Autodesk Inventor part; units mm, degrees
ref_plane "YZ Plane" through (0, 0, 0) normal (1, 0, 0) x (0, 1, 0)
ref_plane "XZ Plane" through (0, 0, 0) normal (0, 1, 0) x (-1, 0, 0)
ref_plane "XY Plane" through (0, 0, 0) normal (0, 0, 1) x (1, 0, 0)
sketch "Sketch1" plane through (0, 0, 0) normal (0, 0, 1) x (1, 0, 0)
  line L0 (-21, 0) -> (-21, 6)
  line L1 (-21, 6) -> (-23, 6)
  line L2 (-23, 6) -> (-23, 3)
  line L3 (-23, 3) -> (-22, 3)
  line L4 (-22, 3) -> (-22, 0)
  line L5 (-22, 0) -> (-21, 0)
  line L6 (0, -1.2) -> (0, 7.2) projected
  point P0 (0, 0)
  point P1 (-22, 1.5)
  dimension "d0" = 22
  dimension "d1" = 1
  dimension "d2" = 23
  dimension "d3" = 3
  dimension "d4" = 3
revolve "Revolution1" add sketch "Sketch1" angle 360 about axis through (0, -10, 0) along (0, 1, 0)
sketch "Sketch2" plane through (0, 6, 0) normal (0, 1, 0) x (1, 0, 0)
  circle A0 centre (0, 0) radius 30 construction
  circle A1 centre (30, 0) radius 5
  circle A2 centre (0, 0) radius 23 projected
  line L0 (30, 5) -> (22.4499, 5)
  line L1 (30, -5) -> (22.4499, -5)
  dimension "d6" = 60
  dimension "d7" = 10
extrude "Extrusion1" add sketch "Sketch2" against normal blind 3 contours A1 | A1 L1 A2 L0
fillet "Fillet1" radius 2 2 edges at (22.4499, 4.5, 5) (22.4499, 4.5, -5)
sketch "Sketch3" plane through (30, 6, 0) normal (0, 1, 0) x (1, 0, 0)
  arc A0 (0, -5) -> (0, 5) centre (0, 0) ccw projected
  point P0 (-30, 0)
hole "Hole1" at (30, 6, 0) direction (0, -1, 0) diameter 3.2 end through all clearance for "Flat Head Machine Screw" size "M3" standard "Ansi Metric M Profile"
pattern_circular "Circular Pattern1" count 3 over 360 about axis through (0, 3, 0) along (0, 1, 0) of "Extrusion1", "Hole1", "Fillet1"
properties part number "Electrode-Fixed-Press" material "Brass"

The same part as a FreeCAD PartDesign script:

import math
import FreeCAD as App
import Part
import Sketcher
Q = App.Units.Quantity


def edges_at(feature, points):
    """Names of the edges that pass closest to the given points."""
    edges = feature.Shape.Edges
    near = lambda p: min(range(len(edges)), key=lambda i: edges[i].distToShape(Part.Vertex(*p))[0])
    return sorted({f"Edge{near(p) + 1}" for p in points})


def add_polygon(sketch, points):
    """Adds a closed chain of lines whose ends are joined by coincident constraints."""
    first, n = sketch.GeometryCount, len(points)
    for a, b in zip(points, points[1:] + points[:1]):
        sketch.addGeometry(Part.LineSegment(App.Vector(*a, 0), App.Vector(*b, 0)), False)
    for i in range(n):
        sketch.addConstraint(Sketcher.Constraint("Coincident", first + i, 2, first + (i + 1) % n, 1))

doc = App.newDocument("Part")
body = doc.addObject("PartDesign::Body", "Body")

# Sketch on XY plane
sketch1 = body.newObject("Sketcher::SketchObject", "Sketch")
sketch1.AttachmentSupport = (doc.getObject("XY_Plane"), [""])
sketch1.MapMode = "FlatFace"
add_polygon(sketch1, [(-22, 0), (-21, 0), (-21, 6), (-23, 6), (-23, 3), (-22, 3)])  # lines 0-5
sketch1.addConstraint([
    Sketcher.Constraint("Horizontal", 0),
    Sketcher.Constraint("Vertical", 1),
    Sketcher.Constraint("Horizontal", 2),
    Sketcher.Constraint("Vertical", 3),
    Sketcher.Constraint("Horizontal", 4),
    Sketcher.Constraint("Vertical", 5),
    Sketcher.Constraint("PointOnObject", 0, 2, -1),
    Sketcher.Constraint("Equal", 0, 4),
    Sketcher.Constraint("Equal", 3, 5),
    Sketcher.Constraint("DistanceX", 0, 1, 0, 2, Q("1 mm")),
    Sketcher.Constraint("DistanceY", 3, 2, 3, 1, Q("3 mm")),
    Sketcher.Constraint("DistanceX", 2, 2, -1, 1, Q("23 mm")),
])
revolution = body.newObject("PartDesign::Revolution", "Revolution")
revolution.Profile = sketch1
revolution.ReferenceAxis = (sketch1, ["V_Axis"])
revolution.Angle = 360

# Sketch on XZ plane
sketch2 = body.newObject("Sketcher::SketchObject", "Sketch001")
sketch2.AttachmentSupport = (doc.getObject("XZ_Plane"), [""])
sketch2.MapMode = "FlatFace"
sketch2.AttachmentOffset = App.Placement(App.Vector(0, 0, -6), App.Rotation())
sketch2.addGeometry([
    Part.ArcOfCircle(Part.Circle(App.Vector(30, 0, 0), App.Vector(0, 0, 1), 5), math.radians(-90), math.radians(90)),
    Part.LineSegment(App.Vector(30, -5, 0), App.Vector(22, -5, 0)),
    Part.ArcOfCircle(Part.Circle(App.Vector(0, 0, 0), App.Vector(0, 0, 1), 23), math.radians(-13), math.radians(13)),
    Part.LineSegment(App.Vector(22, 5, 0), App.Vector(30, 5, 0)),
], False)
sketch2.addConstraint([
    Sketcher.Constraint("Tangent", 0, 1, 1, 1),
    Sketcher.Constraint("Coincident", 1, 2, 2, 1),
    Sketcher.Constraint("Coincident", 2, 2, 3, 1),
    Sketcher.Constraint("Tangent", 3, 2, 0, 2),
    Sketcher.Constraint("Horizontal", 1),
    Sketcher.Constraint("Horizontal", 3),
    Sketcher.Constraint("Coincident", 2, 3, -1, 1),
    Sketcher.Constraint("PointOnObject", 0, 3, -1),
    Sketcher.Constraint("Radius", 0, Q("5 mm")),
    Sketcher.Constraint("Radius", 2, Q("23 mm")),
    Sketcher.Constraint("DistanceX", -1, 1, 0, 3, Q("30 mm")),
])
pad1 = body.newObject("PartDesign::Pad", "Pad")
pad1.Profile = sketch2
pad1.Length = 3
doc.recompute()

fillet = body.newObject("PartDesign::Fillet", "Fillet")
fillet.Base = (pad1, edges_at(pad1, [(22.45, 4.5, 5), (22.45, 4.5, -5)]))
fillet.Radius = 2

# Sketch on XZ plane
sketch3 = body.newObject("Sketcher::SketchObject", "Sketch002")
sketch3.AttachmentSupport = (doc.getObject("XZ_Plane"), [""])
sketch3.MapMode = "FlatFace"
sketch3.AttachmentOffset = App.Placement(App.Vector(0, 0, -6), App.Rotation())
sketch3.addGeometry(Part.Circle(App.Vector(30, 0, 0), App.Vector(0, 0, 1), 1.6), False)
sketch3.addConstraint([
    Sketcher.Constraint("PointOnObject", 0, 3, -1),
    Sketcher.Constraint("Diameter", 0, Q("3.2 mm")),
    Sketcher.Constraint("DistanceX", -1, 1, 0, 3, Q("30 mm")),
])
doc.recompute()
hole = body.newObject("PartDesign::Hole", "Hole")
hole.Profile = sketch3
hole.ThreadType = "None"
hole.Diameter = 3.2
hole.DepthType = "ThroughAll"
hole.Reversed = True
doc.recompute()

polarpattern = body.newObject("PartDesign::PolarPattern", "PolarPattern")
polarpattern.Originals = [pad1, hole, fillet]
polarpattern.Axis = (doc.getObject("Y_Axis"), [""])
polarpattern.Angle = 360
polarpattern.Occurrences = 3
body.Tip = polarpattern

doc.recompute()
